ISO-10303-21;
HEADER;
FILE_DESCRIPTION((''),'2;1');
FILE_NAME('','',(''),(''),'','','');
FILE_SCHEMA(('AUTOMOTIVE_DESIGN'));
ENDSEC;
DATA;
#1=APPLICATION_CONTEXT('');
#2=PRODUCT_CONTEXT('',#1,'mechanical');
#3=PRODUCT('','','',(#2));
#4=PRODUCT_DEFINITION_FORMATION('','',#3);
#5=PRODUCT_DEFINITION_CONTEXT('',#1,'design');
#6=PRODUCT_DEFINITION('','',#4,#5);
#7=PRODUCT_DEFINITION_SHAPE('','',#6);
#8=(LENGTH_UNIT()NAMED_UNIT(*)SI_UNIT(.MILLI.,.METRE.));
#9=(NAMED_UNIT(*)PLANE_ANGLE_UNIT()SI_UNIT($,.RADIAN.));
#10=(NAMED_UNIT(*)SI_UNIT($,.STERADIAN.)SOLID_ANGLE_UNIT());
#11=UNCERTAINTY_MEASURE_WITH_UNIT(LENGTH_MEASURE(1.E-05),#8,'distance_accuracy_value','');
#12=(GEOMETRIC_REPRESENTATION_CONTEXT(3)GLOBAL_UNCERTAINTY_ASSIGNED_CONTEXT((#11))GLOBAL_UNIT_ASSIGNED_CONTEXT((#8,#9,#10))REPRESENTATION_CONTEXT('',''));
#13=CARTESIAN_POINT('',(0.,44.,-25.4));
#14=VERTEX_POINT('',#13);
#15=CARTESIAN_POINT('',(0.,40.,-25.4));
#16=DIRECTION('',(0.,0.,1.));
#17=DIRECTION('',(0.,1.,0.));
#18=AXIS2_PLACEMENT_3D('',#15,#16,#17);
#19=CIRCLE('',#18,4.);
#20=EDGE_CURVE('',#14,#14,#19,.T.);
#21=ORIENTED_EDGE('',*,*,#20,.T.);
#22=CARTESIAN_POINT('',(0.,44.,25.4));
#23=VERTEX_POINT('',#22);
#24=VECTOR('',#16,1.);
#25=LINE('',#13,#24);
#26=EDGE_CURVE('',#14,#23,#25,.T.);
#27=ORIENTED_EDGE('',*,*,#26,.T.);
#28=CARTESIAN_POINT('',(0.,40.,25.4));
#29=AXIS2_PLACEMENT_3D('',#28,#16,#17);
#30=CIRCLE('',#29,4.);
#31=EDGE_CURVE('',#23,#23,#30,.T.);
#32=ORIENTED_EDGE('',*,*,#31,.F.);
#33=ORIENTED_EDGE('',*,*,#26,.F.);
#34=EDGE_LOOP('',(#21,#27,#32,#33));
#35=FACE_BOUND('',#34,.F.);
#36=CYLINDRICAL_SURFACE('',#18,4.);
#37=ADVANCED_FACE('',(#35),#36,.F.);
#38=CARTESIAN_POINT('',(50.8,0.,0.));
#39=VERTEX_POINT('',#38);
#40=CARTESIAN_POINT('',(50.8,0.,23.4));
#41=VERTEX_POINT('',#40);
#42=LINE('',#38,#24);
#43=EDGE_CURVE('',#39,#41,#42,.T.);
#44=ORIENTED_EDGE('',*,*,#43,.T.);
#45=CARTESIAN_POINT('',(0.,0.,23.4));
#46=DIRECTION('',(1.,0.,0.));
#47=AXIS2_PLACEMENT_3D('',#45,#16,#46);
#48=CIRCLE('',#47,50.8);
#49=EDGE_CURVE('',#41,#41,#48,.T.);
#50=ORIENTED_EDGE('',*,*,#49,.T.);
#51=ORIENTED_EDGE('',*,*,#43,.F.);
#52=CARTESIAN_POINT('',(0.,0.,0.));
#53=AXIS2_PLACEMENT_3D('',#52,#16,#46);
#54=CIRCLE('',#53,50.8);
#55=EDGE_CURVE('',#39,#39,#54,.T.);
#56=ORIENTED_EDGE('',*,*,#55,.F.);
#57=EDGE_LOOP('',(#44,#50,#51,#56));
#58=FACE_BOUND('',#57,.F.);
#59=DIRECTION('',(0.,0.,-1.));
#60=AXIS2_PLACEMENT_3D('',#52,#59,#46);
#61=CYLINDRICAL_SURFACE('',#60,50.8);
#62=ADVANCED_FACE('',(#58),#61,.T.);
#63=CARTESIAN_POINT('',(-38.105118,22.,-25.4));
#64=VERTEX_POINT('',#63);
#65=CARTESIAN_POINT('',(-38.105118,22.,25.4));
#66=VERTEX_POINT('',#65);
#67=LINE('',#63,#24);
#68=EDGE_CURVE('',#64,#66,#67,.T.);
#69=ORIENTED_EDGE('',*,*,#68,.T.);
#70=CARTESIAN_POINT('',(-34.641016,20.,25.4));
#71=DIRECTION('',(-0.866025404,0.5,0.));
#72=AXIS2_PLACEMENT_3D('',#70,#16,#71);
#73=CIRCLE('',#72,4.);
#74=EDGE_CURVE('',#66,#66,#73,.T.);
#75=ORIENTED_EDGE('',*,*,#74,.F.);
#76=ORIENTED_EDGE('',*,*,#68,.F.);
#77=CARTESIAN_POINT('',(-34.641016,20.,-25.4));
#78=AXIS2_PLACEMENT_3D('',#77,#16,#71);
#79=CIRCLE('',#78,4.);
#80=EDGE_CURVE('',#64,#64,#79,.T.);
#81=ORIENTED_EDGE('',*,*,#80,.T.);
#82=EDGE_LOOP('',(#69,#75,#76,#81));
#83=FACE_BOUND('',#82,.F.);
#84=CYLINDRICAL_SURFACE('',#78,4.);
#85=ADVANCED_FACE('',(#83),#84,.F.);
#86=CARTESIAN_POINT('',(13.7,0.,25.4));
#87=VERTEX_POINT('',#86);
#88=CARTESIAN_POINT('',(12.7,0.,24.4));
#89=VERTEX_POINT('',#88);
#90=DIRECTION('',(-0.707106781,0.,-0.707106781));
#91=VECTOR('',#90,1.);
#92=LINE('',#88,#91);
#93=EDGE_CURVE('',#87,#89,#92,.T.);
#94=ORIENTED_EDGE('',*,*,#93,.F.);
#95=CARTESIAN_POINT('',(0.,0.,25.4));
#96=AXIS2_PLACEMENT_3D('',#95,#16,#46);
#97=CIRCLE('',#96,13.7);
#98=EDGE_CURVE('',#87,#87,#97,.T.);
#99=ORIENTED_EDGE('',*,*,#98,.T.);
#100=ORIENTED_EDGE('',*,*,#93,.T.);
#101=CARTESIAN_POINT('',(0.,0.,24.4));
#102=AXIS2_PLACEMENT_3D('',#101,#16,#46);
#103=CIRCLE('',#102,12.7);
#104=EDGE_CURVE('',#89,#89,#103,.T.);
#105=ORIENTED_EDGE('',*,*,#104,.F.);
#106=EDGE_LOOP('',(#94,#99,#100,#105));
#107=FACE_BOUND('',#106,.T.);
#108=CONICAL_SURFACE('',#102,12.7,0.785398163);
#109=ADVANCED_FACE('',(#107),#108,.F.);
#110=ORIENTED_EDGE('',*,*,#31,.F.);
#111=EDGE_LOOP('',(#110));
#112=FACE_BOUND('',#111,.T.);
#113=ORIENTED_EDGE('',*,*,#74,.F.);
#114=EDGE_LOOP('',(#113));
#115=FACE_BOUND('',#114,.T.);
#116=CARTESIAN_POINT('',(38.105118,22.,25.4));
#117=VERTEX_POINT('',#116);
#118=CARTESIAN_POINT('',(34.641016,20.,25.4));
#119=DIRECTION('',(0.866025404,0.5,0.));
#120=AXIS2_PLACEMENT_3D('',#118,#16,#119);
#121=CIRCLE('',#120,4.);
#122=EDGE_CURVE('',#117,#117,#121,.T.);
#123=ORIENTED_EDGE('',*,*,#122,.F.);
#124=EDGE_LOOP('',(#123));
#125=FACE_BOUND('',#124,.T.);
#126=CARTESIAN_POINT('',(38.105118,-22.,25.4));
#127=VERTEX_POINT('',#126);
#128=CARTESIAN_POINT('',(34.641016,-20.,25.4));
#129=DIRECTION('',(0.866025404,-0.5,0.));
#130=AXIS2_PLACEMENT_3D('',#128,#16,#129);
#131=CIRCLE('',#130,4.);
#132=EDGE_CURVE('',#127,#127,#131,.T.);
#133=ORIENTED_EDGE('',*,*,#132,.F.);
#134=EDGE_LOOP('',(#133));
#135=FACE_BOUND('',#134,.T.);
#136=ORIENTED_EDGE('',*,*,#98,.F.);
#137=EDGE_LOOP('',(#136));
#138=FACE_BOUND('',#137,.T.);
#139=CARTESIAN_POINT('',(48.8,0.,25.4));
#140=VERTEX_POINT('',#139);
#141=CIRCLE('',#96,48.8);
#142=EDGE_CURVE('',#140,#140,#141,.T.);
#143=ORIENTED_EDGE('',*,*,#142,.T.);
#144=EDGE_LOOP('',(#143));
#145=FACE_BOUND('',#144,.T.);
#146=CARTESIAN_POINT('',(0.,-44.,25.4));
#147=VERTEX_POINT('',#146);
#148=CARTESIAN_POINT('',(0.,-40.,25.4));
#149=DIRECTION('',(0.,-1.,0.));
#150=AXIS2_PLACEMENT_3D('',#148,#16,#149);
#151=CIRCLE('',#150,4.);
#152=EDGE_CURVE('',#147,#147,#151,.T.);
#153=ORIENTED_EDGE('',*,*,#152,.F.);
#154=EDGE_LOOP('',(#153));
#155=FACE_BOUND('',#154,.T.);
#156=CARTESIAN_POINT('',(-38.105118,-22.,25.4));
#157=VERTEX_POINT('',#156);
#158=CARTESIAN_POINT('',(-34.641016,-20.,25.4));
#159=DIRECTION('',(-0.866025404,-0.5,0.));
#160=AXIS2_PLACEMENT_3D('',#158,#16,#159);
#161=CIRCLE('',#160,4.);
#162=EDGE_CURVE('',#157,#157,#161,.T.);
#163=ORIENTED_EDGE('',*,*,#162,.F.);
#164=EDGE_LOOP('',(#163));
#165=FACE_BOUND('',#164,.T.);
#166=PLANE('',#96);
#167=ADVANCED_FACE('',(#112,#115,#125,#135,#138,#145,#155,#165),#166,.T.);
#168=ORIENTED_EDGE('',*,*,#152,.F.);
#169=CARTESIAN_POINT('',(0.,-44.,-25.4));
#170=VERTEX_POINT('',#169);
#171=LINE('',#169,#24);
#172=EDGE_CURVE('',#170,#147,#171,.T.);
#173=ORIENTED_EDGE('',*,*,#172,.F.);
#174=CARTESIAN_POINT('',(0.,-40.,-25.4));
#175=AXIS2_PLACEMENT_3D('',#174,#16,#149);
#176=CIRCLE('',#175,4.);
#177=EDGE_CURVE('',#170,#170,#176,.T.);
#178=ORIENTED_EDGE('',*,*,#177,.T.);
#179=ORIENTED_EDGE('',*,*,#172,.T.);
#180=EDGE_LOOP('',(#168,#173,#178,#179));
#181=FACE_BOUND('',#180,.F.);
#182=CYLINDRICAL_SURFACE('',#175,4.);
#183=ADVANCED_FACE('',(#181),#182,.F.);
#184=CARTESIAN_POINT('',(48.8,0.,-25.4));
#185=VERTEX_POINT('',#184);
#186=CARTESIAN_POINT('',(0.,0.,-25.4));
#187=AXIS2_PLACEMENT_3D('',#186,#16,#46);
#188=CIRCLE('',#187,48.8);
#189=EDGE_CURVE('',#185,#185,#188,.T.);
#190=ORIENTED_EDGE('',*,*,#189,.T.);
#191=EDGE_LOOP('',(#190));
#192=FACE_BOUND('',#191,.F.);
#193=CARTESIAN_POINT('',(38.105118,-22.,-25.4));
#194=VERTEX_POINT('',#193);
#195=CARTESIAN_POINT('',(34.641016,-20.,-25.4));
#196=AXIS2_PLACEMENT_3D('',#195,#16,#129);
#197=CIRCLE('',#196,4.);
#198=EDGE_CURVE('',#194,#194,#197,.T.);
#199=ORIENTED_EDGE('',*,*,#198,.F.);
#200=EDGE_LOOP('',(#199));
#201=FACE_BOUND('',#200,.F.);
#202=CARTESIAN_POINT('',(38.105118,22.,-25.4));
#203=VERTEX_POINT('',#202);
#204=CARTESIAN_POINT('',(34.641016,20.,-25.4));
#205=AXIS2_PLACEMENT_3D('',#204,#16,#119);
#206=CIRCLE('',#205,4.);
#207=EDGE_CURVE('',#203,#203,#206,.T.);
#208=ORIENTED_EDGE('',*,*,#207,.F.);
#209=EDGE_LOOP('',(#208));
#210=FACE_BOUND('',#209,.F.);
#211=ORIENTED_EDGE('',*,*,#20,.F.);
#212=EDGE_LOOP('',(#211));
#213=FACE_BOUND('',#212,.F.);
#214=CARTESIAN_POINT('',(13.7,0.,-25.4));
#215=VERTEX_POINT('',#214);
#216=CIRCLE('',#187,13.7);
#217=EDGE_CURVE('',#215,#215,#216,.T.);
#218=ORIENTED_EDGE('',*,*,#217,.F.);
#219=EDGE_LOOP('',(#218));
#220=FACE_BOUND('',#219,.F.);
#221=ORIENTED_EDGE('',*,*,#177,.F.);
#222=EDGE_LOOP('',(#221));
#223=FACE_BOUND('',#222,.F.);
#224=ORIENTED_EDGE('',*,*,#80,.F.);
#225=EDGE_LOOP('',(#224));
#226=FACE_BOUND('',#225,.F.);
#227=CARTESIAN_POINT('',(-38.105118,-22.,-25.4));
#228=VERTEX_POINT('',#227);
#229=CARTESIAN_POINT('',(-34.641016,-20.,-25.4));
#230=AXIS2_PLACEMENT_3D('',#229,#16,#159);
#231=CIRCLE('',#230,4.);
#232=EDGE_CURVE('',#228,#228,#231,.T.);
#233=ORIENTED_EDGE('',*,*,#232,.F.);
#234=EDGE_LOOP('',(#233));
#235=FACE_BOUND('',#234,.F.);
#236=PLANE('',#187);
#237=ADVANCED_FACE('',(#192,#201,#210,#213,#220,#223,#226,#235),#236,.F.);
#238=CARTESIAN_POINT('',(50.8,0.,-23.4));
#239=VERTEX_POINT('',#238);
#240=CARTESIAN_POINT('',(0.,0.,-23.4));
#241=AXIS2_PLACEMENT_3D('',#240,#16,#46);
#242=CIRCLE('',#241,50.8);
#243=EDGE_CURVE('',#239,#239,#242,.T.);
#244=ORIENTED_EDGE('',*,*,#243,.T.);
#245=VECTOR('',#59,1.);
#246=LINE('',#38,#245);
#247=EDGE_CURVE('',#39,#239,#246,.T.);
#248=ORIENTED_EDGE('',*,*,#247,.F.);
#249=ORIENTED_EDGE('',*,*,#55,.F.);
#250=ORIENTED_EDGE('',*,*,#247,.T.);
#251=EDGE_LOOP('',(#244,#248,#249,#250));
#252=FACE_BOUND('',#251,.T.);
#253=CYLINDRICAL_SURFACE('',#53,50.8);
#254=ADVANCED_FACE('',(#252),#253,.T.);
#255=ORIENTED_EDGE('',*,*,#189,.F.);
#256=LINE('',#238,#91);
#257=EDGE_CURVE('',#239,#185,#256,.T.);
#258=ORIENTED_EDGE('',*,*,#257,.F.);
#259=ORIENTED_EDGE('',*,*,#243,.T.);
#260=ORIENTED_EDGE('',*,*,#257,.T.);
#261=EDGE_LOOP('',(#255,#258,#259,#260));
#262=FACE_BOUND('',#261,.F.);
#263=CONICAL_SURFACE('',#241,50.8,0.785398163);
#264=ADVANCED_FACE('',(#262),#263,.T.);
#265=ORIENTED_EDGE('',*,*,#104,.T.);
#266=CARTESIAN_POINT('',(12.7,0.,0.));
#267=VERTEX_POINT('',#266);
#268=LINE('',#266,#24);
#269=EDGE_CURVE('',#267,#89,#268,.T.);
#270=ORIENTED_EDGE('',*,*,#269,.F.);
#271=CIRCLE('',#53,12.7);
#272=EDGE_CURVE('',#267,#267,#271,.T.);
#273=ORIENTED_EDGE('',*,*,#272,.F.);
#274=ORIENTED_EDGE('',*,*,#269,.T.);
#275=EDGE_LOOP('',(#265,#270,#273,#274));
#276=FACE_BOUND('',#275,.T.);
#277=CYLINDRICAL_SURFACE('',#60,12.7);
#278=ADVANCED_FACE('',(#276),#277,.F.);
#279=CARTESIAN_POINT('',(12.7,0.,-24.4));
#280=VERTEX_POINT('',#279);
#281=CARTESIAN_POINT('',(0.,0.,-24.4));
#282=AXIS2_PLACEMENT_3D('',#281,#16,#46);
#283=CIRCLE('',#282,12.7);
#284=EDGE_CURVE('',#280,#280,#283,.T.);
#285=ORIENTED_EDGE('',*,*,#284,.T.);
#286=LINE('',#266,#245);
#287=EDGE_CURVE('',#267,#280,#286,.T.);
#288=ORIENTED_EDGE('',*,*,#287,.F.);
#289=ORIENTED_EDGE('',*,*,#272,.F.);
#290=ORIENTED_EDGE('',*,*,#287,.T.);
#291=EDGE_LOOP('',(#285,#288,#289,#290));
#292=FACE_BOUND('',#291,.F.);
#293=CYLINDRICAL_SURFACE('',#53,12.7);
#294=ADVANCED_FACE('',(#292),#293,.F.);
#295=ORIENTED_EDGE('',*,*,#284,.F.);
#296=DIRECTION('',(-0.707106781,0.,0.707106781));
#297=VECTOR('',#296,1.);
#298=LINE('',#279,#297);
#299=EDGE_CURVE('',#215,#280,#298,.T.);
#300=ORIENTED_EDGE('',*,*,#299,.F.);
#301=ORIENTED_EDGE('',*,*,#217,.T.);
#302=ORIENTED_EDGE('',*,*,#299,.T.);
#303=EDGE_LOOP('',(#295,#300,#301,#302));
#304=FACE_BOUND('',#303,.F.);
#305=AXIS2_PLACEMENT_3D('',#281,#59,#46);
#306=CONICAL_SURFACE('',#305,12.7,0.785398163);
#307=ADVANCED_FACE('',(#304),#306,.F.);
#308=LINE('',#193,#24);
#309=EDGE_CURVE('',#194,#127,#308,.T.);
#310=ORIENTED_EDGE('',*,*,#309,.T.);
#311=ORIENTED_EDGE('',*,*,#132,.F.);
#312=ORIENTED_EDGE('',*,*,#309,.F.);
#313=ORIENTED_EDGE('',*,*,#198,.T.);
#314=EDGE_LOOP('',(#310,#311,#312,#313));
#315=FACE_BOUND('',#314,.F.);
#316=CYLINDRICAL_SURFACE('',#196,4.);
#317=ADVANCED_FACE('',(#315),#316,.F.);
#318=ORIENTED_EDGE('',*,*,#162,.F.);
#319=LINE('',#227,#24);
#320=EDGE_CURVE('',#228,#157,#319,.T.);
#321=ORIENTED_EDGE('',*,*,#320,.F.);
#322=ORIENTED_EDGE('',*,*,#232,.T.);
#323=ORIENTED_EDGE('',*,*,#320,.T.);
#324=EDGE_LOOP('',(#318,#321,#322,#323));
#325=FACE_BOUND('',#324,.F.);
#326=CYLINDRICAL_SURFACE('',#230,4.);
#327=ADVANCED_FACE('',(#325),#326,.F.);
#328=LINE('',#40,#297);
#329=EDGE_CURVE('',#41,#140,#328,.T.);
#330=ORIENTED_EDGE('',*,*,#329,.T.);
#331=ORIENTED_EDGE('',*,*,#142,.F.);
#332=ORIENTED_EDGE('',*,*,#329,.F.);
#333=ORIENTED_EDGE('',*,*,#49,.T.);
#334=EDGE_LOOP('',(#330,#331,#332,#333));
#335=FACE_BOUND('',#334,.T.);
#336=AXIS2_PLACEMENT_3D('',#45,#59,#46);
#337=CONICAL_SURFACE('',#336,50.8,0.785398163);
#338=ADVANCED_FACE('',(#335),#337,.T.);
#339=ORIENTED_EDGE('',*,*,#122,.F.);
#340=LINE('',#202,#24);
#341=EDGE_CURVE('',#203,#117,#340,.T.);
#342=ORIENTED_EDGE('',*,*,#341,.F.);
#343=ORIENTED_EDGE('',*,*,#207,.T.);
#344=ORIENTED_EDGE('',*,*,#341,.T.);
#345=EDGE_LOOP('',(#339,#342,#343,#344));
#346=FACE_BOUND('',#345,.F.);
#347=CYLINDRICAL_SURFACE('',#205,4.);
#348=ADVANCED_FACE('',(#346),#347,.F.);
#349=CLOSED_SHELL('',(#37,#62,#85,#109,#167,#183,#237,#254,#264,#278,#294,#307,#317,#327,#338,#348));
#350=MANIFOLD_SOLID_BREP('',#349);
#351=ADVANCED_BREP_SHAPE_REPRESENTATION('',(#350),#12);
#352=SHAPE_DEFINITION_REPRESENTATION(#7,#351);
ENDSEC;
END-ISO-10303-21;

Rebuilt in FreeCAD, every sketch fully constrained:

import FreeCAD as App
import Part
import Sketcher
from FreeCAD import Vector
Q = App.Units.Quantity


def edges_at(feature, points):
    """Names of the edges that pass closest to the given points."""
    edges = feature.Shape.Edges
    near = lambda p: min(range(len(edges)), key=lambda i: edges[i].distToShape(Part.Vertex(*p))[0])
    return sorted({f"Edge{near(p) + 1}" for p in points})

doc = App.newDocument("Part")
body = doc.addObject("PartDesign::Body", "Body")

sketch1 = body.newObject("Sketcher::SketchObject", "Sketch")
sketch1.AttachmentSupport = (doc.getObject("XY_Plane"), [""])
sketch1.MapMode = "FlatFace"
sketch1.addGeometry([
    Part.Circle(Vector(0, 0, 0), Vector(0, 0, 1), 50.8),
    Part.Circle(Vector(0, 0, 0), Vector(0, 0, 1), 12.7),
], False)
sketch1.addConstraint([
    Sketcher.Constraint("Coincident", 0, 3, -1, 1),
    Sketcher.Constraint("Coincident", 1, 3, -1, 1),
    Sketcher.Constraint("Diameter", 0, Q("101.6 mm")),
    Sketcher.Constraint("Diameter", 1, Q("25.4 mm")),
])
pad1 = body.newObject("PartDesign::Pad", "Pad")
pad1.Profile = sketch1
pad1.Length = 50.8
pad1.Midplane = True

sketch2 = body.newObject("Sketcher::SketchObject", "Sketch001")
sketch2.AttachmentSupport = (doc.getObject("XY_Plane"), [""])
sketch2.MapMode = "FlatFace"
sketch2.AttachmentOffset = App.Placement(Vector(0, 0, -25.4), App.Rotation())
sketch2.addGeometry(Part.Circle(Vector(0, 40, 0), Vector(0, 0, 1), 4), False)
sketch2.addConstraint([
    Sketcher.Constraint("PointOnObject", 0, 3, -2),
    Sketcher.Constraint("Diameter", 0, Q("8 mm")),
    Sketcher.Constraint("DistanceY", -1, 1, 0, 3, Q("40 mm")),
])
doc.recompute()
hole = body.newObject("PartDesign::Hole", "Hole")
hole.Profile = sketch2
hole.ThreadType = "None"
hole.Diameter = 8
hole.DepthType = "ThroughAll"
hole.Reversed = True
doc.recompute()

polarpattern = body.newObject("PartDesign::PolarPattern", "PolarPattern")
polarpattern.Originals = [hole]
polarpattern.Axis = (doc.getObject("Z_Axis"), [""])
polarpattern.Angle = 360
polarpattern.Occurrences = 6
body.Tip = polarpattern
doc.recompute()

chamfer = body.newObject("PartDesign::Chamfer", "Chamfer")
chamfer.Base = (polarpattern, edges_at(polarpattern, [(-50.8, 0, -25.4), (-50.8, 0, 25.4)]))
chamfer.Size = 2
doc.recompute()

chamfer2 = body.newObject("PartDesign::Chamfer", "Chamfer001")
chamfer2.Base = (chamfer, edges_at(chamfer, [(-12.7, 0, -25.4), (-12.7, 0, 25.4)]))
chamfer2.Size = 1

doc.recompute()
